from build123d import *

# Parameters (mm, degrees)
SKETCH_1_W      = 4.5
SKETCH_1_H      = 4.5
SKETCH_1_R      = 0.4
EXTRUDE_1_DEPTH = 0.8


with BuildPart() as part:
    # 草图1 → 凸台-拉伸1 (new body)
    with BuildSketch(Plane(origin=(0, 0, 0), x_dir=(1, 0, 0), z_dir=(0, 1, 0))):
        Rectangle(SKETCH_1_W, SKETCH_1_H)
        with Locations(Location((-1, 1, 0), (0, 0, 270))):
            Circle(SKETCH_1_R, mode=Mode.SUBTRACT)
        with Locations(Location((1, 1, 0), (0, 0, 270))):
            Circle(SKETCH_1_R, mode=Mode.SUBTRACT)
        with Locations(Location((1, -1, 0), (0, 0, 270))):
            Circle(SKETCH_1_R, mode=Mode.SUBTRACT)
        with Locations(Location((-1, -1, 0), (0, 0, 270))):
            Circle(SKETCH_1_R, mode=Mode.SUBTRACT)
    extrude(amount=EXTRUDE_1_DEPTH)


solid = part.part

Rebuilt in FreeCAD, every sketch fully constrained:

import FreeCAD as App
import Part
import Sketcher
from FreeCAD import Vector


def add_polygon(sketch, points):
    """Adds a closed chain of lines whose ends are joined by coincident constraints."""
    first, n = sketch.GeometryCount, len(points)
    for a, b in zip(points, points[1:] + points[:1]):
        sketch.addGeometry(Part.LineSegment(App.Vector(*a, 0), App.Vector(*b, 0)), False)
    for i in range(n):
        sketch.addConstraint(Sketcher.Constraint("Coincident", first + i, 2, first + (i + 1) % n, 1))

doc = App.newDocument("Part")
params = doc.addObject("Spreadsheet::Sheet", "Params")
for row, (alias, value) in enumerate([
    ("sketch1_diameter", "0.8 mm"),
    ("sketch1_width", "4.5 mm"),
    ("pad1_length", "0.8 mm"),
], start=1):
    params.set(f"A{row}", alias)
    params.set(f"B{row}", "=" + value)
    params.setAlias(f"B{row}", alias)

body = doc.addObject("PartDesign::Body", "Body")

# Sketch on XZ plane
sketch1 = body.newObject("Sketcher::SketchObject", "Sketch")
sketch1.AttachmentSupport = (doc.getObject("XZ_Plane"), [""])
sketch1.MapMode = "FlatFace"
add_polygon(sketch1, [(-2.25, -2.25), (-2.25, 2.25), (2.25, 2.25), (2.25, -2.25)])  # lines 0-3
sketch1.addGeometry(Part.Circle(Vector(-1, 1, 0), Vector(0, 0, 1), 0.4), False)  # 4
sketch1.addGeometry(Part.Circle(Vector(1, 1, 0), Vector(0, 0, 1), 0.4), False)  # 5
sketch1.addGeometry(Part.Circle(Vector(-1, -1, 0), Vector(0, 0, 1), 0.4), False)  # 6
sketch1.addGeometry(Part.Circle(Vector(1, -1, 0), Vector(0, 0, 1), 0.4), False)  # 7
sketch1.addConstraint(Sketcher.Constraint("Vertical", 0))
sketch1.addConstraint(Sketcher.Constraint("Horizontal", 1))
sketch1.addConstraint(Sketcher.Constraint("Vertical", 2))
sketch1.addConstraint(Sketcher.Constraint("Horizontal", 3))
sketch1.addConstraint(Sketcher.Constraint("Equal", 4, 5))
sketch1.addConstraint(Sketcher.Constraint("Equal", 5, 6))
sketch1.addConstraint(Sketcher.Constraint("Equal", 6, 7))
sketch1.addConstraint(Sketcher.Constraint("Symmetric", 5, 3, 6, 3, -1, 1))
sketch1.addConstraint(Sketcher.Constraint("Symmetric", 4, 3, 7, 3, -1, 1))
sketch1.addConstraint(Sketcher.Constraint("Symmetric", 0, 2, 2, 2, -1, 1))
sketch1.addConstraint(Sketcher.Constraint("Symmetric", 4, 3, 5, 3, -2))
sketch1.addConstraint(Sketcher.Constraint("Equal", 3, 0))
sketch1.addConstraint(Sketcher.Constraint("Diameter", 4, 0.8))
sketch1.addConstraint(Sketcher.Constraint("DistanceX", 1, 1, 1, 2, 4.5))
sketch1.addConstraint(Sketcher.Constraint("DistanceX", 4, 3, -1, 1, 1.0))
sketch1.addConstraint(Sketcher.Constraint("DistanceY", -1, 1, 4, 3, 1.0))
sketch1.setExpression("Constraints[16]", "Params.sketch1_diameter")
sketch1.setExpression("Constraints[17]", "Params.sketch1_width")
pad1 = body.newObject("PartDesign::Pad", "Pad")
pad1.Profile = sketch1
pad1.setExpression("Length", "Params.pad1_length")
pad1.Reversed = True

doc.recompute()
